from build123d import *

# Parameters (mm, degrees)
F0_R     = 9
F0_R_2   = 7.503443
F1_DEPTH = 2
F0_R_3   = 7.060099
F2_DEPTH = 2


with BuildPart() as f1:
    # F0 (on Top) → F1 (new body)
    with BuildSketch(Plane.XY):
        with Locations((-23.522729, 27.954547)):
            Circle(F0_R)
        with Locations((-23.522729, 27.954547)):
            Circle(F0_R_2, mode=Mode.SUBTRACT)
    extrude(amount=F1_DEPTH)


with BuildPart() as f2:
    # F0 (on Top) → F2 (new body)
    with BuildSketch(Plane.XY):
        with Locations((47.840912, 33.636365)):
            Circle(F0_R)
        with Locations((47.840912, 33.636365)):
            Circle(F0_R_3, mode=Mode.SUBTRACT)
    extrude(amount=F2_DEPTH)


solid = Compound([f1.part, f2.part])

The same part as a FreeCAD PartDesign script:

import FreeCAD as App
import Part
import Sketcher
Q = App.Units.Quantity

doc = App.newDocument("Part")
params = doc.addObject("Spreadsheet::Sheet", "Params")
for row, (alias, value) in enumerate([
    ("sketch1_diameter", "18 mm"),
    ("pad1_length", "2 mm"),
    ("sketch2_diameter", "18 mm"),
    ("pad2_length", "2 mm"),
], start=1):
    params.set(f"A{row}", alias)
    params.set(f"B{row}", "=" + value)
    params.setAlias(f"B{row}", alias)

body = doc.addObject("PartDesign::Body", "Body")

# Sketch on XY plane
sketch1 = body.newObject("Sketcher::SketchObject", "Sketch")
sketch1.AttachmentSupport = (doc.getObject("XY_Plane"), [""])
sketch1.MapMode = "FlatFace"
sketch1.addGeometry(Part.Circle(App.Vector(-23.522729, 27.954547, 0), App.Vector(0, 0, 1), 9), False)
sketch1.addGeometry(Part.Circle(App.Vector(-23.522729, 27.954547, 0), App.Vector(0, 0, 1), 7.503443), False)
sketch1.addConstraint(Sketcher.Constraint("Coincident", 1, 3, 0, 3))
sketch1.addConstraint(Sketcher.Constraint("Diameter", 0, Q("18 mm")))
sketch1.addConstraint(Sketcher.Constraint("Diameter", 1, Q("15.006886 mm")))
sketch1.addConstraint(Sketcher.Constraint("DistanceX", 0, 3, -1, 1, Q("23.522729 mm")))
sketch1.addConstraint(Sketcher.Constraint("DistanceY", -1, 1, 0, 3, Q("27.954547 mm")))
sketch1.setExpression("Constraints[1]", "Params.sketch1_diameter")
pad1 = body.newObject("PartDesign::Pad", "Pad")
pad1.Profile = sketch1
pad1.setExpression("Length", "Params.pad1_length")
body2 = doc.addObject("PartDesign::Body", "Body001")

# Sketch on XY plane
sketch2 = body2.newObject("Sketcher::SketchObject", "Sketch001")
sketch2.AttachmentSupport = (doc.getObject("XY_Plane001"), [""])
sketch2.MapMode = "FlatFace"
sketch2.addGeometry(Part.Circle(App.Vector(47.840912, 33.636365, 0), App.Vector(0, 0, 1), 9), False)
sketch2.addGeometry(Part.Circle(App.Vector(47.840912, 33.636365, 0), App.Vector(0, 0, 1), 7.060099), False)
sketch2.addConstraint(Sketcher.Constraint("Coincident", 1, 3, 0, 3))
sketch2.addConstraint(Sketcher.Constraint("Diameter", 0, Q("18 mm")))
sketch2.addConstraint(Sketcher.Constraint("Diameter", 1, Q("14.120198 mm")))
sketch2.addConstraint(Sketcher.Constraint("DistanceX", -1, 1, 0, 3, Q("47.840912 mm")))
sketch2.addConstraint(Sketcher.Constraint("DistanceY", -1, 1, 0, 3, Q("33.636365 mm")))
sketch2.setExpression("Constraints[1]", "Params.sketch2_diameter")
pad2 = body2.newObject("PartDesign::Pad", "Pad001")
pad2.Profile = sketch2
pad2.setExpression("Length", "Params.pad2_length")

doc.recompute()
